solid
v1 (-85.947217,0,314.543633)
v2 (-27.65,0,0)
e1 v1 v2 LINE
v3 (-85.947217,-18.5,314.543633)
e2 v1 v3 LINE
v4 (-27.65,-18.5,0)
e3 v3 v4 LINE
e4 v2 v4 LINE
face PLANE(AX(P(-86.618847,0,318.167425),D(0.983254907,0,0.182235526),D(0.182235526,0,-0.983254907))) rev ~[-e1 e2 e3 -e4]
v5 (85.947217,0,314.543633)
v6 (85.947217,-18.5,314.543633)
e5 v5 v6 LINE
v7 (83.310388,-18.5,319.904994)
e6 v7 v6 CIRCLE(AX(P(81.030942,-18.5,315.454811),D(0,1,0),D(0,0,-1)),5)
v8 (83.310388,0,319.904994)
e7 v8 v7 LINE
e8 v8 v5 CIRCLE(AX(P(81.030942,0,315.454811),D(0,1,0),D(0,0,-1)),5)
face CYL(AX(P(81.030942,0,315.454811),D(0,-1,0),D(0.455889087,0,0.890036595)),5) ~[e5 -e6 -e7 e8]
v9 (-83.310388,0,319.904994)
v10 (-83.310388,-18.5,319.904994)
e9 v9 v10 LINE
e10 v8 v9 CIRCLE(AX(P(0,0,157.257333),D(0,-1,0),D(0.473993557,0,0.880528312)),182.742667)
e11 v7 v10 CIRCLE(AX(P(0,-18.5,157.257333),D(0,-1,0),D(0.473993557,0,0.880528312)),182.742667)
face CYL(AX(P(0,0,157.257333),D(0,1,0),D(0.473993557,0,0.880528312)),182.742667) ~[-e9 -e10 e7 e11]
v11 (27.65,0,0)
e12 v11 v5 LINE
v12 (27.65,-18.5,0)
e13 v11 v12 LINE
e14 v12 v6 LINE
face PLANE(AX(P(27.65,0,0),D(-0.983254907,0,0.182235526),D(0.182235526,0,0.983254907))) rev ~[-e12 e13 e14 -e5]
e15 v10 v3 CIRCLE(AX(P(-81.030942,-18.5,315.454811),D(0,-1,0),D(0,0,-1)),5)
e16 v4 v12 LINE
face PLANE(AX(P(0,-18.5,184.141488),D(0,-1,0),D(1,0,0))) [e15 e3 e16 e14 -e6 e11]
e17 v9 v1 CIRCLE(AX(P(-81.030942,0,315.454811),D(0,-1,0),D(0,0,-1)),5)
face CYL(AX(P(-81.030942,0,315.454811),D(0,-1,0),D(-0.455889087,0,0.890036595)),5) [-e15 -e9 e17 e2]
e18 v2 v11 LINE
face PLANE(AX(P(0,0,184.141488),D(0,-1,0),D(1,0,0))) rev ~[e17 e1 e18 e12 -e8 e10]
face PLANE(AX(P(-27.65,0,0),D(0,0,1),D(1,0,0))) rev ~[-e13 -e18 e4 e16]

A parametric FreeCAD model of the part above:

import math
import FreeCAD as App
import Part
import Sketcher

V = App.Vector
Q = App.Units.Quantity


def edges_at(feature, points):
    """Names of the edges that pass closest to the given points."""
    edges = feature.Shape.Edges
    near = lambda p: min(range(len(edges)), key=lambda i: edges[i].distToShape(Part.Vertex(*p))[0])
    return sorted({f"Edge{near(p) + 1}" for p in points})

doc = App.newDocument("Part")
body = doc.addObject("PartDesign::Body", "Body")

sketch1 = body.newObject("Sketcher::SketchObject", "Sketch")
sketch1.AttachmentSupport = (doc.getObject("XZ_Plane"), [""])
sketch1.MapMode = "FlatFace"
sketch1.addGeometry(Part.LineSegment(V(-27.65, 0, 0), V(27.65, 0, 0)), False)
sketch1.addGeometry(Part.LineSegment(V(27.65, 0, 0), V(86.618847, 318.167425, 0)), False)
sketch1.addGeometry(Part.ArcOfCircle(Part.Circle(V(0, 157.257333, 0), V(0, 0, 1), 182.742667), math.radians(61.706159), math.radians(118.293841)), False)
sketch1.addGeometry(Part.LineSegment(V(-86.618847, 318.167425, 0), V(-27.65, 0, 0)), False)
sketch1.addConstraint(Sketcher.Constraint("Coincident", 0, 2, 1, 1))
sketch1.addConstraint(Sketcher.Constraint("Coincident", 1, 2, 2, 1))
sketch1.addConstraint(Sketcher.Constraint("Coincident", 2, 2, 3, 1))
sketch1.addConstraint(Sketcher.Constraint("Coincident", 3, 2, 0, 1))
sketch1.addConstraint(Sketcher.Constraint("Horizontal", 0))
sketch1.addConstraint(Sketcher.Constraint("Symmetric", 0, 2, 3, 2, -1, 1))
sketch1.addConstraint(Sketcher.Constraint("Symmetric", 1, 2, 2, 2, -2))
sketch1.addConstraint(Sketcher.Constraint("DistanceX", 0, 1, 0, 2, 55.3))
sketch1.addConstraint(Sketcher.Constraint("Angle", 1, Q("79.5 deg")))
sketch1.addConstraint(Sketcher.Constraint("Radius", 2, 182.742667))
sketch1.addConstraint(Sketcher.Constraint("Distance", 1, 323.585901))
pad1 = body.newObject("PartDesign::Pad", "Pad")
pad1.Profile = sketch1
pad1.Length = 18.5
doc.recompute()

fillet = body.newObject("PartDesign::Fillet", "Fillet")
fillet.Base = (pad1, edges_at(pad1, [(-86.619, -9.25, 318.167)]))
fillet.Radius = 5
doc.recompute()

fillet2 = body.newObject("PartDesign::Fillet", "Fillet001")
fillet2.Base = (fillet, edges_at(fillet, [(86.619, -9.25, 318.167)]))
fillet2.Radius = 5

doc.recompute()
